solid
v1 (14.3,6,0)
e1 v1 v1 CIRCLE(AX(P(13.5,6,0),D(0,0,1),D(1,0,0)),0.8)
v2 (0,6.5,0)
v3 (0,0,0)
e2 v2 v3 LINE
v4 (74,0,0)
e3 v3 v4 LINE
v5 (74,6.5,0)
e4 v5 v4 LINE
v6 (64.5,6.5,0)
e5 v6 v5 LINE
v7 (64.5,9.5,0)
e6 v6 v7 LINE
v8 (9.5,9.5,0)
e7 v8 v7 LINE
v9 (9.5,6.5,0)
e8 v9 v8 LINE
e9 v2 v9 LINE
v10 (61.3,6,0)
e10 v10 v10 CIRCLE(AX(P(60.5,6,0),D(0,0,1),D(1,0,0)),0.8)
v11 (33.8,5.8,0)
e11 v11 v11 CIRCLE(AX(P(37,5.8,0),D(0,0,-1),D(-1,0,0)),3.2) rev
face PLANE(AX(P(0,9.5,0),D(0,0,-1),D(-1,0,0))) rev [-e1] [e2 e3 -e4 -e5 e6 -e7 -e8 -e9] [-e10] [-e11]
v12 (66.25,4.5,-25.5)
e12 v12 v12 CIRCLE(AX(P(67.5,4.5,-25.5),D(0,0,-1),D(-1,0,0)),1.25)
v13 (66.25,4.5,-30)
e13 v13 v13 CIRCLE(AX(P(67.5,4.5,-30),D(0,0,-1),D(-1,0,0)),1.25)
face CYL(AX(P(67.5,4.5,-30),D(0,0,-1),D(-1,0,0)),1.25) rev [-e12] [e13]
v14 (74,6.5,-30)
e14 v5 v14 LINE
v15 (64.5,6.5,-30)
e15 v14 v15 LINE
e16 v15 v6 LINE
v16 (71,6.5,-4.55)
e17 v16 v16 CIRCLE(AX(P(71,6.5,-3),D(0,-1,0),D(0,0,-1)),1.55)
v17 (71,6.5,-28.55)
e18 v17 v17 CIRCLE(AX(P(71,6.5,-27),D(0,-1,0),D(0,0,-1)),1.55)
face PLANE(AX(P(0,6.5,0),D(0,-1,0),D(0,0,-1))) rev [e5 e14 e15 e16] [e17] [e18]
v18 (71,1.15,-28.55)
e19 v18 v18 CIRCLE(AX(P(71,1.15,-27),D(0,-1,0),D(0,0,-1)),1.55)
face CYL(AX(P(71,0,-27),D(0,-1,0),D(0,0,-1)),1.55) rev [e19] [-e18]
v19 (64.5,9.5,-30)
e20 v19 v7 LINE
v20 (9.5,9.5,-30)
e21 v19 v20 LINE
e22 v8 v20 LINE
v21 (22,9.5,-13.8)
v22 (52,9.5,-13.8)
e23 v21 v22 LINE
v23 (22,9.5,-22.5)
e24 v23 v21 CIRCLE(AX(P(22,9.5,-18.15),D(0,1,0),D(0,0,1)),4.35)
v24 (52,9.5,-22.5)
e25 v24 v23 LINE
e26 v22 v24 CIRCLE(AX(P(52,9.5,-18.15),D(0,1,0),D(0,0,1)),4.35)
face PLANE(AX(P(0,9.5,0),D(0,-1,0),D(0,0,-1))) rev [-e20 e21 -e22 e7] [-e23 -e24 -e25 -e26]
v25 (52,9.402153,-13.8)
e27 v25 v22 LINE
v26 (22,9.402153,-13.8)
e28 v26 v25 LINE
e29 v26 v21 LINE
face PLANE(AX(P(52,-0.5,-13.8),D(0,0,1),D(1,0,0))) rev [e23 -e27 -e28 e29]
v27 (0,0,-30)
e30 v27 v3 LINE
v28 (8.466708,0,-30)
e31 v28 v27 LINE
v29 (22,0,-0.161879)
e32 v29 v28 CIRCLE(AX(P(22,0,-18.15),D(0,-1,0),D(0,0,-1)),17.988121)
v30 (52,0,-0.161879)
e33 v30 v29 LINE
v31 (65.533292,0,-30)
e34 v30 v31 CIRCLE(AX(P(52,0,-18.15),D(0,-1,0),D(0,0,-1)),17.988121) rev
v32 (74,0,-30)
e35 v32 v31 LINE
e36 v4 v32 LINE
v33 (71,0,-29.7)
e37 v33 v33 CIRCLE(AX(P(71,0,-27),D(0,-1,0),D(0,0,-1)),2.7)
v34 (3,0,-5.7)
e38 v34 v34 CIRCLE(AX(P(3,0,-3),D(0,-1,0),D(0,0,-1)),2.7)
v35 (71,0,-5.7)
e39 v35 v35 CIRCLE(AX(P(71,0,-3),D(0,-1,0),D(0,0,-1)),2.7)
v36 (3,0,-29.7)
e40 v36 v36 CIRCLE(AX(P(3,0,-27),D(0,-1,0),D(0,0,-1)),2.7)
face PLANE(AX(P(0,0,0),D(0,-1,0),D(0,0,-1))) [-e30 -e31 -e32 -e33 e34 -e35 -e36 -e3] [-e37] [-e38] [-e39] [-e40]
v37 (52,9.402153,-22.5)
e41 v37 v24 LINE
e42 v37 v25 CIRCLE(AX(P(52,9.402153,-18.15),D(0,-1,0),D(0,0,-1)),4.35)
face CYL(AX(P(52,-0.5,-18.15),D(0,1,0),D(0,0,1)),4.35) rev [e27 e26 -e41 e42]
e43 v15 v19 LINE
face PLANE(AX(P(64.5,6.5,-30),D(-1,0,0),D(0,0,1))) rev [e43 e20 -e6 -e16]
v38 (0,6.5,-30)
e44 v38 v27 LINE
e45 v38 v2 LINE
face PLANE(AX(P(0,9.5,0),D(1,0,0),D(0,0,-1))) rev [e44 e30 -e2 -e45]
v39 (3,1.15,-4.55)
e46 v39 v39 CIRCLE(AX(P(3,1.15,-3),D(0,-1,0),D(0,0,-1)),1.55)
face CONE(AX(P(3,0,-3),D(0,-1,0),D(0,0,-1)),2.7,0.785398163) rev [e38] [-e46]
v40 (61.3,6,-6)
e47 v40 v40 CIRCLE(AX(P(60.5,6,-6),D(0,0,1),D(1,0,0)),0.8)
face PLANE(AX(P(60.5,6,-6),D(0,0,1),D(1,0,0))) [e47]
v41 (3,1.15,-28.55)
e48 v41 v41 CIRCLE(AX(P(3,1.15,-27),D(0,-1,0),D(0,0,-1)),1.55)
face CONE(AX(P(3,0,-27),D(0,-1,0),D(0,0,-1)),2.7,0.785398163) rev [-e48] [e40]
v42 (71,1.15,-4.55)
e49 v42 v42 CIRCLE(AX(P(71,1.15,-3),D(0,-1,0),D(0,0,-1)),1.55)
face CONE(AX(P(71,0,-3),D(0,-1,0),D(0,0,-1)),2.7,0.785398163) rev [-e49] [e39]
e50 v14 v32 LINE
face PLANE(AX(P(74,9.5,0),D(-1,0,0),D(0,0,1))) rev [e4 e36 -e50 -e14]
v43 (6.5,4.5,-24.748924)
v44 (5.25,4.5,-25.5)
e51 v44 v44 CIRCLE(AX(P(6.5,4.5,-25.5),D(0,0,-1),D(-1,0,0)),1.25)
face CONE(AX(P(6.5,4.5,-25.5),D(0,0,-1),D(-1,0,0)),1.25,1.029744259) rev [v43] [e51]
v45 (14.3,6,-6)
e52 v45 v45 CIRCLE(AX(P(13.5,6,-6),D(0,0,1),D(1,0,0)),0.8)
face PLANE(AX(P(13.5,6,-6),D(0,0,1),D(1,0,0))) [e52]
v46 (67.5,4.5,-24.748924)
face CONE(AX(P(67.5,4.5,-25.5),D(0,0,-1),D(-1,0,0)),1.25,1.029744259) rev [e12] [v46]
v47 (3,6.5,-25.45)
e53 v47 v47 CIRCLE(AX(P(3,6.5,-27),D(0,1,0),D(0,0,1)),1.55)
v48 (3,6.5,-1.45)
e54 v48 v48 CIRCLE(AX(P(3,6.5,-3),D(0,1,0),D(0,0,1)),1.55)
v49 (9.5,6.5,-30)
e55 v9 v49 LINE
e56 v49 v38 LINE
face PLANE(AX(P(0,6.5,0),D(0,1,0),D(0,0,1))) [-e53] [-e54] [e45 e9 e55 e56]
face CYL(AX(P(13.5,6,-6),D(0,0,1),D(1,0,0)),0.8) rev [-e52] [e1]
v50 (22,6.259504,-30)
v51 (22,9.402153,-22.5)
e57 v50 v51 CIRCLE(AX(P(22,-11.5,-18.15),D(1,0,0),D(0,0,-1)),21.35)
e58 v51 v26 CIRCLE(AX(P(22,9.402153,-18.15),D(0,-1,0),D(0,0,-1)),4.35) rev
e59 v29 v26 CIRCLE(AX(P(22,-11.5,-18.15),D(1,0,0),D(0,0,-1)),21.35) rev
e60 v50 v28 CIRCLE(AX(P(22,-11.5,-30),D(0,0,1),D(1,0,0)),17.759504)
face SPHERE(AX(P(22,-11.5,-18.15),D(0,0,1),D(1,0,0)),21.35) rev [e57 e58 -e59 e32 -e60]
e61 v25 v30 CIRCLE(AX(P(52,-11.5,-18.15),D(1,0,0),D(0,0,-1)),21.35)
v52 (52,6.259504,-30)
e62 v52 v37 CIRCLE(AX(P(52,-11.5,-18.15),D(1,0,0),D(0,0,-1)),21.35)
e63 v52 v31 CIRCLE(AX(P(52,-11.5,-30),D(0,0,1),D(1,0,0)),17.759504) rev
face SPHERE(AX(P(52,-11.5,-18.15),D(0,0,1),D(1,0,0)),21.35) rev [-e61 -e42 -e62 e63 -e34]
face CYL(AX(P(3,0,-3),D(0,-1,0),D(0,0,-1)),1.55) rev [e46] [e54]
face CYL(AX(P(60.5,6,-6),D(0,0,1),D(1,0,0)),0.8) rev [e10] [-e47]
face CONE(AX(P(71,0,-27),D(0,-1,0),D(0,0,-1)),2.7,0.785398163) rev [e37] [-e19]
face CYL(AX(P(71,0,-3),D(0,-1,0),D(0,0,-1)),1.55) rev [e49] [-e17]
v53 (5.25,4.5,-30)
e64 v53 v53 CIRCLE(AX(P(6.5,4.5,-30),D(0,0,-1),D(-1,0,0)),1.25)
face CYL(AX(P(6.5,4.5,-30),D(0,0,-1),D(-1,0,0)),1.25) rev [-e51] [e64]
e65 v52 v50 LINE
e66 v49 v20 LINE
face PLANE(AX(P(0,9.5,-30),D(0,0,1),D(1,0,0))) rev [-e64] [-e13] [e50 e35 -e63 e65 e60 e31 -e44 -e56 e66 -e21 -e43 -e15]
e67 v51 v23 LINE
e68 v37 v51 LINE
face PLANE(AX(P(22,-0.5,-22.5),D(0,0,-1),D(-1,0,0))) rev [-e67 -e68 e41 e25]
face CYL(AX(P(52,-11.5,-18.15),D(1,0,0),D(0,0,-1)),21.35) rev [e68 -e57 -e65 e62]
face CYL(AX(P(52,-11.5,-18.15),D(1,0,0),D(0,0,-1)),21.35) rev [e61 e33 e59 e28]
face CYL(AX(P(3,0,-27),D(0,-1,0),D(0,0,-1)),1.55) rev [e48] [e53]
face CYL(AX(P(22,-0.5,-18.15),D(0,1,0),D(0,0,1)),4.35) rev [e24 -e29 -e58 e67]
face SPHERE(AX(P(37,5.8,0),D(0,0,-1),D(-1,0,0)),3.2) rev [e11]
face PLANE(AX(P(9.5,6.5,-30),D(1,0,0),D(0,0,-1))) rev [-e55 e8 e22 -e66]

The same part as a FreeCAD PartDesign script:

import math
import FreeCAD as App
import Part
import Sketcher
Q = App.Units.Quantity

doc = App.newDocument("Part")
body = doc.addObject("PartDesign::Body", "Body")

# Sketch on XZ plane
sketch1 = body.newObject("Sketcher::SketchObject", "Sketch")
sketch1.AttachmentSupport = (doc.getObject("XZ_Plane"), [""])
sketch1.MapMode = "FlatFace"
sketch1.addGeometry([
    Part.LineSegment(App.Vector(0, -30, 0), App.Vector(0, 0, 0)),
    Part.LineSegment(App.Vector(0, 0, 0), App.Vector(74, 0, 0)),
    Part.LineSegment(App.Vector(74, 0, 0), App.Vector(74, -30, 0)),
    Part.LineSegment(App.Vector(74, -30, 0), App.Vector(0, -30, 0)),
], False)
sketch1.addConstraint([
    Sketcher.Constraint("Coincident", 0, 2, 1, 1),
    Sketcher.Constraint("Coincident", 1, 2, 2, 1),
    Sketcher.Constraint("Coincident", 2, 2, 3, 1),
    Sketcher.Constraint("Coincident", 3, 2, 0, 1),
    Sketcher.Constraint("Vertical", 0),
    Sketcher.Constraint("Horizontal", 1),
    Sketcher.Constraint("Vertical", 2),
    Sketcher.Constraint("Horizontal", 3),
    Sketcher.Constraint("Coincident", 0, 2, -1, 1),
    Sketcher.Constraint("DistanceX", 1, 1, 1, 2, Q("74 mm")),
    Sketcher.Constraint("DistanceY", 0, 1, 0, 2, Q("30 mm")),
])
pad1 = body.newObject("PartDesign::Pad", "Pad")
pad1.Profile = sketch1
pad1.Length = 9.5
pad1.Reversed = True

# Sketch on XZ plane
sketch2 = body.newObject("Sketcher::SketchObject", "Sketch001")
sketch2.AttachmentSupport = (doc.getObject("XZ_Plane"), [""])
sketch2.MapMode = "FlatFace"
sketch2.AttachmentOffset = App.Placement(App.Vector(0, 0, -9.5), App.Rotation())
sketch2.addGeometry([
    Part.LineSegment(App.Vector(64, -30, 0), App.Vector(64, 0, 0)),  # 0
    Part.LineSegment(App.Vector(64, 0, 0), App.Vector(74, 0, 0)),  # 1
    Part.LineSegment(App.Vector(74, 0, 0), App.Vector(74, -30, 0)),  # 2
    Part.LineSegment(App.Vector(74, -30, 0), App.Vector(64, -30, 0)),  # 3
    Part.LineSegment(App.Vector(0, -30, 0), App.Vector(0, 0, 0)),  # 4
    Part.LineSegment(App.Vector(0, 0, 0), App.Vector(10, 0, 0)),  # 5
    Part.LineSegment(App.Vector(10, 0, 0), App.Vector(10, -30, 0)),  # 6
    Part.LineSegment(App.Vector(10, -30, 0), App.Vector(0, -30, 0)),  # 7
], False)
sketch2.addConstraint([
    Sketcher.Constraint("Coincident", 0, 2, 1, 1),
    Sketcher.Constraint("Coincident", 1, 2, 2, 1),
    Sketcher.Constraint("Coincident", 2, 2, 3, 1),
    Sketcher.Constraint("Coincident", 3, 2, 0, 1),
    Sketcher.Constraint("Coincident", 4, 2, 5, 1),
    Sketcher.Constraint("Coincident", 5, 2, 6, 1),
    Sketcher.Constraint("Coincident", 6, 2, 7, 1),
    Sketcher.Constraint("Coincident", 7, 2, 4, 1),
    Sketcher.Constraint("Vertical", 0),
    Sketcher.Constraint("Horizontal", 1),
    Sketcher.Constraint("Vertical", 2),
    Sketcher.Constraint("Horizontal", 3),
    Sketcher.Constraint("Vertical", 4),
    Sketcher.Constraint("Horizontal", 5),
    Sketcher.Constraint("Vertical", 6),
    Sketcher.Constraint("Horizontal", 7),
    Sketcher.Constraint("Coincident", 4, 2, -1, 1),
    Sketcher.Constraint("PointOnObject", 0, 2, -1),
    Sketcher.Constraint("Horizontal", 3, 2, 6, 2),
    Sketcher.Constraint("Equal", 3, 5),
    Sketcher.Constraint("DistanceY", 0, 1, 0, 2, Q("30 mm")),
    Sketcher.Constraint("DistanceX", 1, 1, 1, 2, Q("9.5 mm")),
    Sketcher.Constraint("DistanceX", -1, 1, 1, 2, Q("74 mm")),
])
pocket1 = body.newObject("PartDesign::Pocket", "Pocket")
pocket1.Profile = sketch2
pocket1.Length = 3
pocket1.Reversed = True

# Sketch on XZ plane
sketch3 = body.newObject("Sketcher::SketchObject", "Sketch002")
sketch3.AttachmentSupport = (doc.getObject("XZ_Plane"), [""])
sketch3.MapMode = "FlatFace"
sketch3.addGeometry([
    Part.Circle(App.Vector(3, -3, 0), App.Vector(0, 0, 1), 1.6),
    Part.Circle(App.Vector(3, -27, 0), App.Vector(0, 0, 1), 1.6),
    Part.Circle(App.Vector(71, -27, 0), App.Vector(0, 0, 1), 1.6),
    Part.Circle(App.Vector(71, -3, 0), App.Vector(0, 0, 1), 1.6),
], False)
sketch3.addConstraint([
    Sketcher.Constraint("Equal", 0, 1),
    Sketcher.Constraint("Equal", 1, 2),
    Sketcher.Constraint("Equal", 2, 3),
    Sketcher.Constraint("Horizontal", 1, 3, 2, 3),
    Sketcher.Constraint("Horizontal", 0, 3, 3, 3),
    Sketcher.Constraint("Vertical", 0, 3, 1, 3),
    Sketcher.Constraint("Vertical", 2, 3, 3, 3),
    Sketcher.Constraint("Diameter", 0, Q("3.1 mm")),
    Sketcher.Constraint("DistanceX", -1, 1, 0, 3, Q("3 mm")),
    Sketcher.Constraint("DistanceY", 0, 3, -1, 1, Q("3 mm")),
    Sketcher.Constraint("DistanceY", 1, 3, -1, 1, Q("27 mm")),
    Sketcher.Constraint("DistanceX", -1, 1, 2, 3, Q("71 mm")),
])
doc.recompute()
hole = body.newObject("PartDesign::Hole", "Hole")
hole.Profile = sketch3
hole.ThreadType = "None"
hole.Diameter = 3.1
hole.DepthType = "ThroughAll"
hole.HoleCutType = "Countersink"
hole.HoleCutDiameter = 5.4
hole.HoleCutCountersinkAngle = 90

# Sketch on XZ plane
sketch4 = body.newObject("Sketcher::SketchObject", "Sketch003")
sketch4.AttachmentSupport = (doc.getObject("XZ_Plane"), [""])
sketch4.MapMode = "FlatFace"
sketch4.AttachmentOffset = App.Placement(App.Vector(0, 0, 11.5), App.Rotation())
sketch4.addGeometry([
    Part.LineSegment(App.Vector(52, 3, 0), App.Vector(52, -40, 0)),
    Part.ArcOfCircle(Part.Circle(App.Vector(52, -18, 0), App.Vector(0, 0, 1), 21), math.radians(-90), math.radians(90)),
], False)
sketch4.addGeometry(Part.LineSegment(App.Vector(52, 3, 0), App.Vector(52, -40, 0)), True)  # axis
sketch4.addConstraint([
    Sketcher.Constraint("Coincident", 0, 1, 1, 2),
    Sketcher.Constraint("Coincident", 1, 1, 0, 2),
    Sketcher.Constraint("Vertical", 0),
    Sketcher.Constraint("Vertical", 2),
    Sketcher.Constraint("Coincident", 2, 1, 0, 1),
    Sketcher.Constraint("Vertical", 1, 3, 0, 1),
    Sketcher.Constraint("Equal", 0, 2),
    Sketcher.Constraint("Radius", 1, Q("21.35 mm")),
    Sketcher.Constraint("DistanceX", -1, 1, 1, 3, Q("52 mm")),
    Sketcher.Constraint("DistanceY", -1, 1, 0, 1, Q("3.2 mm")),
])
groove = body.newObject("PartDesign::Groove", "Groove")
groove.Profile = sketch4
groove.ReferenceAxis = (sketch4, ["Axis0"])
groove.Angle = 360

# Sketch on XZ plane
sketch5 = body.newObject("Sketcher::SketchObject", "Sketch004")
sketch5.AttachmentSupport = (doc.getObject("XZ_Plane"), [""])
sketch5.MapMode = "FlatFace"
sketch5.AttachmentOffset = App.Placement(App.Vector(0, 0, 11.5), App.Rotation())
sketch5.addGeometry([
    Part.LineSegment(App.Vector(22, -40, 0), App.Vector(22, 3, 0)),
    Part.ArcOfCircle(Part.Circle(App.Vector(22, -18, 0), App.Vector(0, 0, 1), 21), math.radians(90), math.radians(270)),
], False)
sketch5.addGeometry(Part.LineSegment(App.Vector(22, 3, 0), App.Vector(22, -40, 0)), True)  # axis
sketch5.addConstraint([
    Sketcher.Constraint("Coincident", 0, 1, 1, 2),
    Sketcher.Constraint("Coincident", 1, 1, 0, 2),
    Sketcher.Constraint("Vertical", 0),
    Sketcher.Constraint("Vertical", 2),
    Sketcher.Constraint("Coincident", 2, 1, 1, 1),
    Sketcher.Constraint("Vertical", 1, 3, 0, 1),
    Sketcher.Constraint("Equal", 0, 2),
    Sketcher.Constraint("Radius", 1, Q("21.35 mm")),
    Sketcher.Constraint("DistanceX", -1, 1, 1, 3, Q("22 mm")),
    Sketcher.Constraint("DistanceY", 0, 1, -1, 1, Q("39.5 mm")),
])
groove2 = body.newObject("PartDesign::Groove", "Groove001")
groove2.Profile = sketch5
groove2.ReferenceAxis = (sketch5, ["Axis0"])
groove2.Angle = 360

# Sketch on XZ plane
sketch6 = body.newObject("Sketcher::SketchObject", "Sketch005")
sketch6.AttachmentSupport = (doc.getObject("XZ_Plane"), [""])
sketch6.MapMode = "FlatFace"
sketch6.AttachmentOffset = App.Placement(App.Vector(0, 0, 11.5), App.Rotation())
sketch6.addGeometry([
    Part.LineSegment(App.Vector(52, -40, 0), App.Vector(52, -18, 0)),
    Part.LineSegment(App.Vector(52, -18, 0), App.Vector(22, -18, 0)),
    Part.LineSegment(App.Vector(22, -18, 0), App.Vector(22, -40, 0)),
    Part.LineSegment(App.Vector(22, -40, 0), App.Vector(52, -40, 0)),
], False)
sketch6.addGeometry(Part.LineSegment(App.Vector(52, -18, 0), App.Vector(22, -18, 0)), True)  # axis
sketch6.addConstraint([
    Sketcher.Constraint("Coincident", 0, 2, 1, 1),
    Sketcher.Constraint("Coincident", 1, 2, 2, 1),
    Sketcher.Constraint("Coincident", 2, 2, 3, 1),
    Sketcher.Constraint("Coincident", 3, 2, 0, 1),
    Sketcher.Constraint("Vertical", 0),
    Sketcher.Constraint("Horizontal", 1),
    Sketcher.Constraint("Vertical", 2),
    Sketcher.Constraint("Horizontal", 3),
    Sketcher.Constraint("Horizontal", 4),
    Sketcher.Constraint("Coincident", 4, 1, 0, 2),
    Sketcher.Constraint("Vertical", 2, 2, 4, 2),
    Sketcher.Constraint("DistanceX", 1, 2, 1, 1, Q("30 mm")),
    Sketcher.Constraint("DistanceX", -1, 1, 0, 2, Q("52 mm")),
    Sketcher.Constraint("DistanceY", 0, 1, 0, 2, Q("21.35 mm")),
    Sketcher.Constraint("DistanceY", 2, 2, -1, 1, Q("39.5 mm")),
])
groove3 = body.newObject("PartDesign::Groove", "Groove002")
groove3.Profile = sketch6
groove3.ReferenceAxis = (sketch6, ["Axis0"])
groove3.Angle = 360

# Sketch on XY plane
sketch7 = body.newObject("Sketcher::SketchObject", "Sketch006")
sketch7.AttachmentSupport = (doc.getObject("XY_Plane"), [""])
sketch7.MapMode = "FlatFace"
sketch7.addGeometry([
    Part.ArcOfCircle(Part.Circle(App.Vector(37, 5.8, 0), App.Vector(0, 0, 1), 3.2), math.radians(90), math.radians(270)),
    Part.LineSegment(App.Vector(37, 2.6, 0), App.Vector(37, 9, 0)),
], False)
sketch7.addGeometry(Part.LineSegment(App.Vector(37, 9, 0), App.Vector(37, 2.6, 0)), True)  # axis
sketch7.addConstraint([
    Sketcher.Constraint("Coincident", 0, 1, 1, 2),
    Sketcher.Constraint("Coincident", 1, 1, 0, 2),
    Sketcher.Constraint("Vertical", 1),
    Sketcher.Constraint("Vertical", 2),
    Sketcher.Constraint("Coincident", 2, 1, 0, 1),
    Sketcher.Constraint("Equal", 1, 2),
    Sketcher.Constraint("Radius", 0, Q("3.2 mm")),
    Sketcher.Constraint("DistanceX", -1, 1, 0, 3, Q("37 mm")),
    Sketcher.Constraint("DistanceX", -1, 1, 0, 1, Q("37 mm")),
    Sketcher.Constraint("DistanceY", -1, 1, 0, 1, Q("9 mm")),
])
groove4 = body.newObject("PartDesign::Groove", "Groove003")
groove4.Profile = sketch7
groove4.ReferenceAxis = (sketch7, ["Axis0"])
groove4.Angle = 360

# Sketch on XY plane
sketch8 = body.newObject("Sketcher::SketchObject", "Sketch007")
sketch8.AttachmentSupport = (doc.getObject("XY_Plane"), [""])
sketch8.MapMode = "FlatFace"
sketch8.addGeometry([
    Part.Circle(App.Vector(13.5, 6, 0), App.Vector(0, 0, 1), 0.8),
    Part.Circle(App.Vector(60.5, 6, 0), App.Vector(0, 0, 1), 0.8),
], False)
sketch8.addConstraint([
    Sketcher.Constraint("Equal", 0, 1),
    Sketcher.Constraint("Horizontal", 0, 3, 1, 3),
    Sketcher.Constraint("Diameter", 0, Q("1.6 mm")),
    Sketcher.Constraint("DistanceY", -1, 1, 0, 3, Q("6 mm")),
    Sketcher.Constraint("DistanceX", 0, 3, 1, 3, Q("47 mm")),
    Sketcher.Constraint("DistanceX", -1, 1, 0, 3, Q("13.5 mm")),
])
pocket2 = body.newObject("PartDesign::Pocket", "Pocket001")
pocket2.Profile = sketch8
pocket2.Length = 6

# Sketch on XY plane
sketch9 = body.newObject("Sketcher::SketchObject", "Sketch008")
sketch9.AttachmentSupport = (doc.getObject("XY_Plane"), [""])
sketch9.MapMode = "FlatFace"
sketch9.AttachmentOffset = App.Placement(App.Vector(0, 0, -30), App.Rotation())
sketch9.addGeometry([
    Part.Circle(App.Vector(6.5, 4.5, 0), App.Vector(0, 0, 1), 1.2),
    Part.Circle(App.Vector(67.5, 4.5, 0), App.Vector(0, 0, 1), 1.2),
], False)
sketch9.addConstraint([
    Sketcher.Constraint("Equal", 0, 1),
    Sketcher.Constraint("Horizontal", 0, 3, 1, 3),
    Sketcher.Constraint("Diameter", 0, Q("2.5 mm")),
    Sketcher.Constraint("DistanceX", 0, 3, 1, 3, Q("61 mm")),
    Sketcher.Constraint("DistanceX", -1, 1, 0, 3, Q("6.5 mm")),
    Sketcher.Constraint("DistanceY", -1, 1, 0, 3, Q("4.5 mm")),
])
doc.recompute()
hole2 = body.newObject("PartDesign::Hole", "Hole001")
hole2.Profile = sketch9
hole2.ThreadType = "None"
hole2.Diameter = 2.5
hole2.DepthType = "Dimension"
hole2.Depth = 4.5
hole2.DrillPoint = "Angled"
hole2.DrillPointAngle = 118
hole2.Reversed = True

# Sketch on XZ plane
sketch10 = body.newObject("Sketcher::SketchObject", "Sketch009")
sketch10.AttachmentSupport = (doc.getObject("XZ_Plane"), [""])
sketch10.MapMode = "FlatFace"
sketch10.AttachmentOffset = App.Placement(App.Vector(0, 0, -9.5), App.Rotation())
sketch10.addGeometry([
    Part.LineSegment(App.Vector(22, -13.8, 0), App.Vector(52, -13.8, 0)),
    Part.ArcOfCircle(Part.Circle(App.Vector(52, -18.1, 0), App.Vector(0, 0, 1), 4.3), math.radians(-90), math.radians(90)),
    Part.LineSegment(App.Vector(52, -22.5, 0), App.Vector(22, -22.5, 0)),
    Part.ArcOfCircle(Part.Circle(App.Vector(22, -18.1, 0), App.Vector(0, 0, 1), 4.3), math.radians(90), math.radians(270)),
], False)
sketch10.addConstraint([
    Sketcher.Constraint("Tangent", 0, 2, 1, 2),
    Sketcher.Constraint("Tangent", 1, 1, 2, 1),
    Sketcher.Constraint("Tangent", 2, 2, 3, 2),
    Sketcher.Constraint("Tangent", 3, 1, 0, 1),
    Sketcher.Constraint("Horizontal", 0),
    Sketcher.Constraint("Horizontal", 2),
    Sketcher.Constraint("DistanceX", 0, 1, 0, 2, Q("30 mm")),
    Sketcher.Constraint("Radius", 1, Q("4.35 mm")),
    Sketcher.Constraint("DistanceX", -1, 1, 1, 3, Q("52 mm")),
    Sketcher.Constraint("DistanceY", 0, 2, -1, 1, Q("13.8 mm")),
])
pocket3 = body.newObject("PartDesign::Pocket", "Pocket002")
pocket3.Profile = sketch10
pocket3.Length = 10
pocket3.Reversed = True

doc.recompute()
